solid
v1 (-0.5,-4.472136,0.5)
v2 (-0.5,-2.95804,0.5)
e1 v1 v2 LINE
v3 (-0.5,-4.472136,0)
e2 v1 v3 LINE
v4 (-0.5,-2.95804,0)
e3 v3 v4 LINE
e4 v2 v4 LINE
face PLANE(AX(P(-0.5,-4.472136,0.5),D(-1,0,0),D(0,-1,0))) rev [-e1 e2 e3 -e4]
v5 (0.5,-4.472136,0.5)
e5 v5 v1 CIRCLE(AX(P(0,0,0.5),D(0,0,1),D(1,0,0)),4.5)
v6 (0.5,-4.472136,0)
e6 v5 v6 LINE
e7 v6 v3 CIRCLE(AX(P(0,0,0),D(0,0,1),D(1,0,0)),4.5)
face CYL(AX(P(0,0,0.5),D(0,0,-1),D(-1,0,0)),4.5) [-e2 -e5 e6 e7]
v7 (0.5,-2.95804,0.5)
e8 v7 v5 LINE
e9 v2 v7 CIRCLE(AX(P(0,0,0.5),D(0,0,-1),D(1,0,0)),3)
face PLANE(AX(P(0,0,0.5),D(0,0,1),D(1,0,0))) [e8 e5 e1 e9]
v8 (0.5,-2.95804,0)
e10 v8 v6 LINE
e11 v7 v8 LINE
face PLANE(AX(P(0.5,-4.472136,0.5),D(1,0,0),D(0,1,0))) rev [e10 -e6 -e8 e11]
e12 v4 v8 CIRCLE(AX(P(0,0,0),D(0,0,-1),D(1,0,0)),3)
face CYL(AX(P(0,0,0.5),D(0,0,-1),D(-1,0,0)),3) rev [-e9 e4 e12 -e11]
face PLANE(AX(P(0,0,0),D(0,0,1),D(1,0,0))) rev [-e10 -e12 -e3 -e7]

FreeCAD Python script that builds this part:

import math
import FreeCAD as App
import Part
import Sketcher

V = App.Vector

doc = App.newDocument("Part")
body = doc.addObject("PartDesign::Body", "Body")

# Sketch on XY plane
sketch1 = body.newObject("Sketcher::SketchObject", "Sketch")
sketch1.AttachmentSupport = (doc.getObject("XY_Plane"), [""])
sketch1.MapMode = "FlatFace"
sketch1.addGeometry([
    Part.LineSegment(V(0.5, -2.95804, 0), V(0.5, -4.472136, 0)),
    Part.ArcOfCircle(Part.Circle(V(0, 0, 0), V(0, 0, 1), 4.5), math.radians(-83.62063), math.radians(263.62063)),
    Part.LineSegment(V(-0.5, -4.472136, 0), V(-0.5, -2.95804, 0)),
    Part.ArcOfCircle(Part.Circle(V(0, 0, 0), V(0, 0, 1), 3), math.radians(-80.405932), math.radians(260.405932)),
], False)
sketch1.addConstraint([
    Sketcher.Constraint("Coincident", 0, 2, 1, 1),
    Sketcher.Constraint("Coincident", 1, 2, 2, 1),
    Sketcher.Constraint("Coincident", 2, 2, 3, 2),
    Sketcher.Constraint("Coincident", 3, 1, 0, 1),
    Sketcher.Constraint("Vertical", 0),
    Sketcher.Constraint("Vertical", 2),
    Sketcher.Constraint("Coincident", 1, 3, -1, 1),
    Sketcher.Constraint("Coincident", 3, 3, -1, 1),
    Sketcher.Constraint("Horizontal", 0, 2, 1, 2),
    Sketcher.Constraint("Radius", 3, 3.0),
    Sketcher.Constraint("Radius", 1, 4.5),
    Sketcher.Constraint("DistanceX", 1, 2, 0, 2, 1.0),
])
pad1 = body.newObject("PartDesign::Pad", "Pad")
pad1.Profile = sketch1
pad1.Length = 0.5

doc.recompute()
